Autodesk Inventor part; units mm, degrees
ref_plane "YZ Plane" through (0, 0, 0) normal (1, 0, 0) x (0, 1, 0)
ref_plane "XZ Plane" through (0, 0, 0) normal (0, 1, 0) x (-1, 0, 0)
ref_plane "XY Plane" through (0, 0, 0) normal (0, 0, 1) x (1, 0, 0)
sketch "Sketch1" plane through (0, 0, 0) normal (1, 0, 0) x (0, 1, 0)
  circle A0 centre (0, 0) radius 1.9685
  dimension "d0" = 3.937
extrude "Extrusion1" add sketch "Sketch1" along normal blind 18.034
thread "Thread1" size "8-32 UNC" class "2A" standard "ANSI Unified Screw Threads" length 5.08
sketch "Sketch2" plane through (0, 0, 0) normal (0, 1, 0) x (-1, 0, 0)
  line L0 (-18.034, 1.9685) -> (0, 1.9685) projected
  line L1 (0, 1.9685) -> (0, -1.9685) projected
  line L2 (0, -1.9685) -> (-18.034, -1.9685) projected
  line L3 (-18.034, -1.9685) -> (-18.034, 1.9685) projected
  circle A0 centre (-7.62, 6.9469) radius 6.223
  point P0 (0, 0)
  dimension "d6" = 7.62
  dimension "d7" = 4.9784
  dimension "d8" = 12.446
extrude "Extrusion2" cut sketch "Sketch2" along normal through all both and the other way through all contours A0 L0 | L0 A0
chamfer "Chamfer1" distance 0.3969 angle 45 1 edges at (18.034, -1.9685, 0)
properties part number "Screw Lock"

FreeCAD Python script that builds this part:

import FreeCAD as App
import Part
import Sketcher
from FreeCAD import Vector
Q = App.Units.Quantity


def edges_at(feature, points):
    """Names of the edges that pass closest to the given points."""
    edges = feature.Shape.Edges
    near = lambda p: min(range(len(edges)), key=lambda i: edges[i].distToShape(Part.Vertex(*p))[0])
    return sorted({f"Edge{near(p) + 1}" for p in points})

doc = App.newDocument("Part")
body = doc.addObject("PartDesign::Body", "Body")

# Sketch on YZ plane
sketch1 = doc.addObject("Sketcher::SketchObject", "Sketch")
body.addObject(sketch1)
sketch1.AttachmentSupport = (doc.YZ_Plane, [""])
sketch1.MapMode = "FlatFace"
sketch1.addGeometry(Part.Circle(Vector(0, 0, 0), Vector(0, 0, 1), 2), False)
sketch1.addConstraint(Sketcher.Constraint("Coincident", 0, 3, -1, 1))
sketch1.addConstraint(Sketcher.Constraint("Diameter", 0, Q("0.155 in")))
pad1 = doc.addObject("PartDesign::Pad", "Pad")
body.addObject(pad1)
pad1.Profile = sketch1
pad1.Length = Q("0.71 in")

# Sketch on XZ plane
sketch2 = doc.addObject("Sketcher::SketchObject", "Sketch001")
body.addObject(sketch2)
sketch2.AttachmentSupport = (doc.XZ_Plane, [""])
sketch2.MapMode = "FlatFace"
sketch2.addGeometry(Part.Circle(Vector(8, 7, 0), Vector(0, 0, 1), 6), False)
sketch2.addConstraint(Sketcher.Constraint("Diameter", 0, Q("0.49 in")))
sketch2.addConstraint(Sketcher.Constraint("DistanceX", -1, 1, 0, 3, Q("0.3 in")))
sketch2.addConstraint(Sketcher.Constraint("DistanceY", -1, 1, 0, 3, Q("0.2735 in")))
pocket1 = doc.addObject("PartDesign::Pocket", "Pocket")
body.addObject(pocket1)
pocket1.Profile = sketch2
pocket1.Type = "ThroughAll"
pocket1.Midplane = True
doc.recompute()

chamfer = doc.addObject("PartDesign::Chamfer", "Chamfer")
body.addObject(chamfer)
chamfer.Base = (pocket1, edges_at(pocket1, [(18.034, -1.968, 0)]))
chamfer.Size = Q("0.015626 in")

doc.recompute()
